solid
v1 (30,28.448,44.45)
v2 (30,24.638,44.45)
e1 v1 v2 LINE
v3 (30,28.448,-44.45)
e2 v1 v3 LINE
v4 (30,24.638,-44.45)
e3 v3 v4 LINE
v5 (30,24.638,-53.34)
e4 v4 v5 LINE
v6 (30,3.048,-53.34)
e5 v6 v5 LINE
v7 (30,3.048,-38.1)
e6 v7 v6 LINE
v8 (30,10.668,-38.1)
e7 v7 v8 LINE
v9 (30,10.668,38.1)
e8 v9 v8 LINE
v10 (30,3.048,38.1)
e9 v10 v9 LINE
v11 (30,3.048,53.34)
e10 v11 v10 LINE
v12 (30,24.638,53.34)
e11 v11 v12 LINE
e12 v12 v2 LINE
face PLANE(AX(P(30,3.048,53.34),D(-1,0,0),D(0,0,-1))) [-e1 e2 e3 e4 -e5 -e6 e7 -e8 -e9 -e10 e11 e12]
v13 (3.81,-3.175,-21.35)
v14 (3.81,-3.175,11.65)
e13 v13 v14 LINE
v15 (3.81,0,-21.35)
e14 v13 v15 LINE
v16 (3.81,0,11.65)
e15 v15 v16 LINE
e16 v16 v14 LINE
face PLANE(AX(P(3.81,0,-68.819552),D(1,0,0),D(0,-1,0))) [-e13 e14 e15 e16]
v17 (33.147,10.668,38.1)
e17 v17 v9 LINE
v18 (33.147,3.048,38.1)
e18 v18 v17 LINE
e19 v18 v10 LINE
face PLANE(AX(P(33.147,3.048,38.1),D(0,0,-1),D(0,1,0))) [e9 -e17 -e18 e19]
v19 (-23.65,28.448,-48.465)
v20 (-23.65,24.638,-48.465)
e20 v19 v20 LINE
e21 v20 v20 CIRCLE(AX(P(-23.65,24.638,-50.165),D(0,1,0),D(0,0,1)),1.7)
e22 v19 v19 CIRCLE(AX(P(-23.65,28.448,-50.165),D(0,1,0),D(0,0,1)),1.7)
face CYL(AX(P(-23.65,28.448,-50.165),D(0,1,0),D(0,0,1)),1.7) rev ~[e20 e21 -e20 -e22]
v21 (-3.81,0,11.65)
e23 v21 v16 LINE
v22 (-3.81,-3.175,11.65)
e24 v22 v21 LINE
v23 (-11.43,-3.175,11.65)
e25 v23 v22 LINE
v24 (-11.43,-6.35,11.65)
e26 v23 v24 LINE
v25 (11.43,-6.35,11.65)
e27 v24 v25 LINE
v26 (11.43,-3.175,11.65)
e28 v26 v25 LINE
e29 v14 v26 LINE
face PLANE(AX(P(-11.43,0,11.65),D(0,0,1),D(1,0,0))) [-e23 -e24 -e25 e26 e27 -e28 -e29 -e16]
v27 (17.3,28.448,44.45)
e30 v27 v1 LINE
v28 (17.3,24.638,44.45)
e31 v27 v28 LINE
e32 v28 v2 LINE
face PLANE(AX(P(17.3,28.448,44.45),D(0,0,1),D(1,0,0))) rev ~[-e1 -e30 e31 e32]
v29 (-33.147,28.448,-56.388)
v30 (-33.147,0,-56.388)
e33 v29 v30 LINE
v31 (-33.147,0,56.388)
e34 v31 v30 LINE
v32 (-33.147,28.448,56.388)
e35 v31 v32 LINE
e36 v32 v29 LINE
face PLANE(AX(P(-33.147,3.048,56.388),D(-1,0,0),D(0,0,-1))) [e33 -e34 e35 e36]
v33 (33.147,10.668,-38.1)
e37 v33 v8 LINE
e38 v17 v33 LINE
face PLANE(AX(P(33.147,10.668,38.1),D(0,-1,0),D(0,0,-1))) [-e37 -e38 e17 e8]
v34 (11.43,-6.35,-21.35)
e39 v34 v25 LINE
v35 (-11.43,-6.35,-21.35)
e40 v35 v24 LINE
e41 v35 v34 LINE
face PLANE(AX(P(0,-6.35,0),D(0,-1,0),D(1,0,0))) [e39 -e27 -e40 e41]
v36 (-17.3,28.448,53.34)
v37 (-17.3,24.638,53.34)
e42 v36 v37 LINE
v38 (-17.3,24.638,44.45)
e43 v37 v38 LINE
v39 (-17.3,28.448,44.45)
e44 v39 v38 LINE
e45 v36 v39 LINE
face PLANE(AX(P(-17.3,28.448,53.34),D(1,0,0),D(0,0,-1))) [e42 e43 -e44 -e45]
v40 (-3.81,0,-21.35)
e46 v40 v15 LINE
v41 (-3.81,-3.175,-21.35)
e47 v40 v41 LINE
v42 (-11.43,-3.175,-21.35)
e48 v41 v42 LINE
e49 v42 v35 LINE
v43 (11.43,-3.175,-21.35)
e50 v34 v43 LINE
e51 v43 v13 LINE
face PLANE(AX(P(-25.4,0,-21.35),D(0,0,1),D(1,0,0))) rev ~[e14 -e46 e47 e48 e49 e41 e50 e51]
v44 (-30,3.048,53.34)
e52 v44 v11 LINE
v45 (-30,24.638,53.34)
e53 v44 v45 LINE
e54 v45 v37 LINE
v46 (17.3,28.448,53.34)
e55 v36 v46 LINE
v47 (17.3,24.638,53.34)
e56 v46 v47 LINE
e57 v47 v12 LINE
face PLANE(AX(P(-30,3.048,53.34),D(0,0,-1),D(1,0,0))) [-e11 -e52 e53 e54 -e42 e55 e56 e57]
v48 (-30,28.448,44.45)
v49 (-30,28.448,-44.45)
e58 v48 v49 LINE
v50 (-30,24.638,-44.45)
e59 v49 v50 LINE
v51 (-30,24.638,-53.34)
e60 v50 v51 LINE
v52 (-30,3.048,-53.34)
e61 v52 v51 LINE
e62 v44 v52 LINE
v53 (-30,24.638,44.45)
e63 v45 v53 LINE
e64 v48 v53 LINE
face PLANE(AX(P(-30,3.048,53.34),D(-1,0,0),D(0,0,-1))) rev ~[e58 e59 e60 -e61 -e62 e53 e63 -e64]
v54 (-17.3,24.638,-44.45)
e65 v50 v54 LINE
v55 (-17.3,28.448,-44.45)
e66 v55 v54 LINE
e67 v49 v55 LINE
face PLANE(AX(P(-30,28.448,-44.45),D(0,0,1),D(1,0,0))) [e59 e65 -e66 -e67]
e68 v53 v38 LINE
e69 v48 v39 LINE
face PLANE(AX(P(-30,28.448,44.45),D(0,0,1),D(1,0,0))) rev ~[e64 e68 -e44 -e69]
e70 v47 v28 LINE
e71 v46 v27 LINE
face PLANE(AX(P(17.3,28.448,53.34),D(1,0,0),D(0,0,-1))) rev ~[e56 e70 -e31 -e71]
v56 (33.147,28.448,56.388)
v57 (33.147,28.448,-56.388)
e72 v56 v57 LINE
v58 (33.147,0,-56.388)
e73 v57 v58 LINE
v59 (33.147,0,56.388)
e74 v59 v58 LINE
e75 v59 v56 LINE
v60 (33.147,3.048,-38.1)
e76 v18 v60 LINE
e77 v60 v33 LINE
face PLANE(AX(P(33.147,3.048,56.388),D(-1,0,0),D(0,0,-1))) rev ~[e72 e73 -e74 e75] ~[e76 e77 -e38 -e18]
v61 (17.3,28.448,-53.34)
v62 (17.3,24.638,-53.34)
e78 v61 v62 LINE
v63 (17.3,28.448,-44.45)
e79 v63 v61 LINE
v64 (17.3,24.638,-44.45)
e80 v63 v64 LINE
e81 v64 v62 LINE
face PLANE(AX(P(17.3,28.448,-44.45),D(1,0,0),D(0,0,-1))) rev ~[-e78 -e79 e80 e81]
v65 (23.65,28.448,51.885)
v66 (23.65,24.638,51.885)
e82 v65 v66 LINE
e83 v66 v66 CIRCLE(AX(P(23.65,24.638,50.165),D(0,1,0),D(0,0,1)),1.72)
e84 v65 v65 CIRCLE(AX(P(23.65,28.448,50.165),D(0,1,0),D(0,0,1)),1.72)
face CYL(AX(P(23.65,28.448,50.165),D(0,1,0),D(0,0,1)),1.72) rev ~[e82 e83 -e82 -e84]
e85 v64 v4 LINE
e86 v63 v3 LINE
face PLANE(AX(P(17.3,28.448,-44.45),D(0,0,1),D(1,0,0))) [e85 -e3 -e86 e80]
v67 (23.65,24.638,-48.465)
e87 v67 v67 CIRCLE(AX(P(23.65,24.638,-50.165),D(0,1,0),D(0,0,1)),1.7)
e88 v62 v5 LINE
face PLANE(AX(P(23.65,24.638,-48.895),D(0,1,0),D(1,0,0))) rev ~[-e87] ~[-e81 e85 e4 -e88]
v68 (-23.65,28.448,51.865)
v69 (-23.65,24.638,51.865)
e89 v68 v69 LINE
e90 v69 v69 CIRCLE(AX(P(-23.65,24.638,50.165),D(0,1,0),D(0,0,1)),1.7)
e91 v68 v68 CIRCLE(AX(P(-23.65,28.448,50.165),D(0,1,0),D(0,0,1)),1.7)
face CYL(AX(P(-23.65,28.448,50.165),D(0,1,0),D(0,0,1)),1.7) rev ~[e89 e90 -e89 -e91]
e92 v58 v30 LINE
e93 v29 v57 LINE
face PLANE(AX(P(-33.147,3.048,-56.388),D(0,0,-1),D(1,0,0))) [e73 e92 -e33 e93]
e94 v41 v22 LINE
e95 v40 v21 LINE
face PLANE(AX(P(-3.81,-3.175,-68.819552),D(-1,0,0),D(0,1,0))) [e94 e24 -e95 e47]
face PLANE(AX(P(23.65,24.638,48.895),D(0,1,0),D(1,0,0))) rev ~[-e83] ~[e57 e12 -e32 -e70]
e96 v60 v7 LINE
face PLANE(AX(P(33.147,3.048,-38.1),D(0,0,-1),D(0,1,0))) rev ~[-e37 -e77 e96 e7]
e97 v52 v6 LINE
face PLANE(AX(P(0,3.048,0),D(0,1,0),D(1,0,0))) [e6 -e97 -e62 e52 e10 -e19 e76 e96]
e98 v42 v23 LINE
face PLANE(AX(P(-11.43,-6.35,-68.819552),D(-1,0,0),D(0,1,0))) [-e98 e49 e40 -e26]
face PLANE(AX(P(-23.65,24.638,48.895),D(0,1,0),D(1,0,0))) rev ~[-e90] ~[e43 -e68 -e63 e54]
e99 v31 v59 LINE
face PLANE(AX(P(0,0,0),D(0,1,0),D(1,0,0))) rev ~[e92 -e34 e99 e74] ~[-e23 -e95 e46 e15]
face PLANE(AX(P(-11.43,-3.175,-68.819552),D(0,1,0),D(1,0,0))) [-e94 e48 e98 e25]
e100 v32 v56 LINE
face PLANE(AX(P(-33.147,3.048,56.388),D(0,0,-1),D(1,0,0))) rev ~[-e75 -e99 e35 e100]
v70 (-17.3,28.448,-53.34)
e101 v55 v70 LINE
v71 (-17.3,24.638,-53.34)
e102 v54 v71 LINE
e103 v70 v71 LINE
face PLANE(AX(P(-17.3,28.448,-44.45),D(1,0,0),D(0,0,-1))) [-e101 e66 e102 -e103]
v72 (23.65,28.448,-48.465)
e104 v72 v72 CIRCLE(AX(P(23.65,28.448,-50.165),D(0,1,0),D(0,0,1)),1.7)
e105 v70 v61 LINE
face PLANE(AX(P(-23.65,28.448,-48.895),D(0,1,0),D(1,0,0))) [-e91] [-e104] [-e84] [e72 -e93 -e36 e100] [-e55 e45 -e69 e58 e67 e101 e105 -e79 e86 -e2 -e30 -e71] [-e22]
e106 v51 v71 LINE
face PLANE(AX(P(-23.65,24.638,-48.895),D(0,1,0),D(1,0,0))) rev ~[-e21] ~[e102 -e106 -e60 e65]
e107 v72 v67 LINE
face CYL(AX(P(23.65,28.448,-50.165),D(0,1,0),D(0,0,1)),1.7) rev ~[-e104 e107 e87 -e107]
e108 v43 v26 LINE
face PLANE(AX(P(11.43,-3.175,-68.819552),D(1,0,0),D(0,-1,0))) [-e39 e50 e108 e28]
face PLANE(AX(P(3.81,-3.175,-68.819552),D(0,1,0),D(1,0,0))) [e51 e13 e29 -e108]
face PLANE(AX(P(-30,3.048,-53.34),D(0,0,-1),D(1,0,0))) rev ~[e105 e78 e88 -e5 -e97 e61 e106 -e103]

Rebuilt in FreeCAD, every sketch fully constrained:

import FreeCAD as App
import Part
import Sketcher

V = App.Vector
Q = App.Units.Quantity


def add_polygon(sketch, points):
    """Adds a closed chain of lines whose ends are joined by coincident constraints."""
    first, n = sketch.GeometryCount, len(points)
    for a, b in zip(points, points[1:] + points[:1]):
        sketch.addGeometry(Part.LineSegment(App.Vector(*a, 0), App.Vector(*b, 0)), False)
    for i in range(n):
        sketch.addConstraint(Sketcher.Constraint("Coincident", first + i, 2, first + (i + 1) % n, 1))

doc = App.newDocument("Part")
body = doc.addObject("PartDesign::Body", "Body")

# Sketch on XZ plane
sketch1 = doc.addObject("Sketcher::SketchObject", "Sketch")
body.addObject(sketch1)
sketch1.AttachmentSupport = (doc.XZ_Plane, [""])
sketch1.MapMode = "FlatFace"
add_polygon(sketch1, [(-33, -56), (-33, 56), (33, 56), (33, -56)])  # lines 0-3
sketch1.addConstraint([
    Sketcher.Constraint("Vertical", 0),
    Sketcher.Constraint("Horizontal", 1),
    Sketcher.Constraint("Vertical", 2),
    Sketcher.Constraint("Horizontal", 3),
    Sketcher.Constraint("Symmetric", 0, 2, 2, 2, -1, 1),
    Sketcher.Constraint("DistanceX", 1, 1, 1, 2, Q("2.61 in")),
    Sketcher.Constraint("DistanceY", 0, 1, 0, 2, Q("4.44 in")),
])
pad1 = doc.addObject("PartDesign::Pad", "Pad")
body.addObject(pad1)
pad1.Profile = sketch1
pad1.Length = Q("0.12 in")
pad1.Reversed = True

# Sketch on XZ plane
sketch2 = doc.addObject("Sketcher::SketchObject", "Sketch001")
body.addObject(sketch2)
sketch2.AttachmentSupport = (doc.XZ_Plane, [""])
sketch2.MapMode = "FlatFace"
sketch2.AttachmentOffset = App.Placement(V(0, 0, -0.12 * 25.4), App.Rotation())
add_polygon(sketch2, [(-33, -56), (-33, 56), (33, 56), (33, -56)])  # lines 0-3
add_polygon(sketch2, [(30, 53), (-30, 53), (-30, -53), (30, -53)])  # lines 4-7
sketch2.addConstraint([
    Sketcher.Constraint("Vertical", 0),
    Sketcher.Constraint("Horizontal", 1),
    Sketcher.Constraint("Vertical", 2),
    Sketcher.Constraint("Horizontal", 3),
    Sketcher.Constraint("Horizontal", 4),
    Sketcher.Constraint("Vertical", 5),
    Sketcher.Constraint("Horizontal", 6),
    Sketcher.Constraint("Vertical", 7),
    Sketcher.Constraint("Symmetric", 0, 2, 2, 2, -1, 1),
    Sketcher.Constraint("Symmetric", 4, 2, 6, 2, -1, 1),
    Sketcher.Constraint("DistanceY", 5, 2, 5, 1, Q("4.2 in")),
    Sketcher.Constraint("DistanceX", 1, 1, 1, 2, Q("2.61 in")),
    Sketcher.Constraint("DistanceY", 0, 1, 0, 2, Q("4.44 in")),
    Sketcher.Constraint("DistanceX", 4, 2, 4, 1, 60.0),
])
pad2 = doc.addObject("PartDesign::Pad", "Pad001")
body.addObject(pad2)
pad2.Profile = sketch2
pad2.Length = Q("1 in")
pad2.Reversed = True

# Sketch on XZ plane
sketch3 = doc.addObject("Sketcher::SketchObject", "Sketch002")
body.addObject(sketch3)
sketch3.AttachmentSupport = (doc.XZ_Plane, [""])
sketch3.MapMode = "FlatFace"
sketch3.AttachmentOffset = App.Placement(V(0, 0, -1.12 * 25.4), App.Rotation())
add_polygon(sketch3, [(-30, -53), (-30, -44), (-17, -44), (-17, -53)])  # lines 0-3
add_polygon(sketch3, [(-30, 44), (-30, 53), (-17, 53), (-17, 44)])  # lines 4-7
add_polygon(sketch3, [(17, -53), (17, -44), (30, -44), (30, -53)])  # lines 8-11
add_polygon(sketch3, [(17, 44), (17, 53), (30, 53), (30, 44)])  # lines 12-15
sketch3.addConstraint([
    Sketcher.Constraint("Vertical", 0),
    Sketcher.Constraint("Horizontal", 1),
    Sketcher.Constraint("Vertical", 2),
    Sketcher.Constraint("Horizontal", 3),
    Sketcher.Constraint("Vertical", 4),
    Sketcher.Constraint("Horizontal", 5),
    Sketcher.Constraint("Vertical", 6),
    Sketcher.Constraint("Horizontal", 7),
    Sketcher.Constraint("Vertical", 8),
    Sketcher.Constraint("Horizontal", 9),
    Sketcher.Constraint("Vertical", 10),
    Sketcher.Constraint("Horizontal", 11),
    Sketcher.Constraint("Vertical", 12),
    Sketcher.Constraint("Horizontal", 13),
    Sketcher.Constraint("Vertical", 14),
    Sketcher.Constraint("Horizontal", 15),
    Sketcher.Constraint("Symmetric", 6, 2, 8, 2, -1, 1),
    Sketcher.Constraint("Symmetric", 4, 2, 10, 2, -1, 1),
    Sketcher.Constraint("Symmetric", 2, 2, 12, 2, -1, 1),
    Sketcher.Constraint("Symmetric", 0, 2, 14, 2, -1, 1),
    Sketcher.Constraint("Symmetric", 1, 2, 8, 2, -2),
    Sketcher.Constraint("Symmetric", 3, 2, 10, 2, -2),
    Sketcher.Constraint("DistanceX", 1, 1, 1, 2, Q("0.5 in")),
    Sketcher.Constraint("DistanceY", 0, 1, 0, 2, Q("0.35 in")),
    Sketcher.Constraint("DistanceY", 2, 2, -1, 1, Q("2.1 in")),
    Sketcher.Constraint("DistanceX", 0, 2, -1, 1, 30.0),
])
pad3 = doc.addObject("PartDesign::Pad", "Pad002")
body.addObject(pad3)
pad3.Profile = sketch3
pad3.Length = Q("0.15 in")

# Sketch on YZ plane
sketch4 = doc.addObject("Sketcher::SketchObject", "Sketch003")
body.addObject(sketch4)
sketch4.AttachmentSupport = (doc.YZ_Plane, [""])
sketch4.MapMode = "FlatFace"
sketch4.AttachmentOffset = App.Placement(V(0, 0, 1.305 * 25.4), App.Rotation())
add_polygon(sketch4, [(11, 38), (3, 38), (3, -38), (11, -38)])  # lines 0-3
sketch4.addConstraint([
    Sketcher.Constraint("Horizontal", 0),
    Sketcher.Constraint("Vertical", 1),
    Sketcher.Constraint("Horizontal", 2),
    Sketcher.Constraint("Vertical", 3),
    Sketcher.Constraint("DistanceY", 1, 2, 1, 1, Q("3 in")),
    Sketcher.Constraint("DistanceX", 0, 2, 0, 1, Q("0.3 in")),
    Sketcher.Constraint("DistanceY", -1, 1, 0, 2, Q("1.5 in")),
    Sketcher.Constraint("DistanceX", -1, 1, 0, 2, Q("0.12 in")),
])
pocket1 = doc.addObject("PartDesign::Pocket", "Pocket")
body.addObject(pocket1)
pocket1.Profile = sketch4
pocket1.Type = "UpToFirst"

# Sketch on XZ plane
sketch5 = doc.addObject("Sketcher::SketchObject", "Sketch004")
body.addObject(sketch5)
sketch5.AttachmentSupport = (doc.XZ_Plane, [""])
sketch5.MapMode = "FlatFace"
add_polygon(sketch5, [(-25, 21), (-25, -21), (25, -21), (25, 21)])  # lines 0-3
sketch5.addConstraint([
    Sketcher.Constraint("Vertical", 0),
    Sketcher.Constraint("Horizontal", 1),
    Sketcher.Constraint("Vertical", 2),
    Sketcher.Constraint("Horizontal", 3),
    Sketcher.Constraint("Symmetric", 0, 2, 2, 2, -1, 1),
    Sketcher.Constraint("DistanceX", 1, 1, 1, 2, Q("2 in")),
    Sketcher.Constraint("DistanceY", 0, 2, 0, 1, 42.7),
])
pad4 = doc.addObject("PartDesign::Pad", "Pad003")
body.addObject(pad4)
pad4.Profile = sketch5
pad4.Length = Q("0.25 in")

# Sketch on XY plane
sketch6 = doc.addObject("Sketcher::SketchObject", "Sketch005")
body.addObject(sketch6)
sketch6.AttachmentSupport = (doc.XY_Plane, [""])
sketch6.MapMode = "FlatFace"
sketch6.AttachmentOffset = App.Placement(V(0, 0, 21.35), App.Rotation())
add_polygon(sketch6, [(-3.8, -3.2), (-3.8, 0), (-25.4, 0), (-25.4, -6.3), (-11.4, -6.3), (-11.4, -3.2)])  # lines 0-5
add_polygon(sketch6, [(25.4, 0), (3.8, 0), (3.8, -3.2), (11.4, -3.2), (11.4, -6.3), (25.4, -6.3)])  # lines 6-11
sketch6.addConstraint([
    Sketcher.Constraint("Vertical", 0),
    Sketcher.Constraint("Horizontal", 1),
    Sketcher.Constraint("Vertical", 2),
    Sketcher.Constraint("Horizontal", 3),
    Sketcher.Constraint("Vertical", 4),
    Sketcher.Constraint("Horizontal", 5),
    Sketcher.Constraint("Horizontal", 6),
    Sketcher.Constraint("Vertical", 7),
    Sketcher.Constraint("Horizontal", 8),
    Sketcher.Constraint("Vertical", 9),
    Sketcher.Constraint("Horizontal", 10),
    Sketcher.Constraint("Vertical", 11),
    Sketcher.Constraint("Symmetric", 0, 2, 6, 2, -1, 1),
    Sketcher.Constraint("Symmetric", 4, 2, 8, 2, -2),
    Sketcher.Constraint("Symmetric", 2, 2, 10, 2, -2),
    Sketcher.Constraint("PointOnObject", 0, 2, -1),
    Sketcher.Constraint("Equal", 0, 4),
    Sketcher.Constraint("DistanceX", 5, 1, 5, 2, Q("0.3 in")),
    Sketcher.Constraint("DistanceX", 1, 2, -1, 1, Q("1 in")),
    Sketcher.Constraint("DistanceX", 1, 2, 1, 1, Q("0.85 in")),
    Sketcher.Constraint("DistanceY", 2, 2, 2, 1, Q("0.25 in")),
])
pocket2 = doc.addObject("PartDesign::Pocket", "Pocket001")
body.addObject(pocket2)
pocket2.Profile = sketch6
pocket2.Type = "ThroughAll"
pocket2.Midplane = True

# Sketch on XZ plane
sketch7 = doc.addObject("Sketcher::SketchObject", "Sketch006")
body.addObject(sketch7)
sketch7.AttachmentSupport = (doc.XZ_Plane, [""])
sketch7.MapMode = "FlatFace"
add_polygon(sketch7, [(-11, 21), (-11, 12), (11, 12), (11, 21)])  # lines 0-3
sketch7.addConstraint([
    Sketcher.Constraint("Vertical", 0),
    Sketcher.Constraint("Horizontal", 1),
    Sketcher.Constraint("Vertical", 2),
    Sketcher.Constraint("Horizontal", 3),
    Sketcher.Constraint("DistanceX", 1, 1, 1, 2, Q("0.9 in")),
    Sketcher.Constraint("DistanceX", 0, 2, -1, 1, Q("0.45 in")),
    Sketcher.Constraint("DistanceY", 0, 2, 0, 1, 9.7),
    Sketcher.Constraint("DistanceY", -1, 1, 0, 2, 11.65),
])
pocket3 = doc.addObject("PartDesign::Pocket", "Pocket002")
body.addObject(pocket3)
pocket3.Profile = sketch7
pocket3.Length = Q("0.25 in")
pocket3.Reversed = True

# Sketch on XZ plane
sketch8 = doc.addObject("Sketcher::SketchObject", "Sketch007")
body.addObject(sketch8)
sketch8.AttachmentSupport = (doc.XZ_Plane, [""])
sketch8.MapMode = "FlatFace"
sketch8.AttachmentOffset = App.Placement(V(0, 0, -1.12 * 25.4), App.Rotation())
sketch8.addGeometry(Part.Circle(V(-23.6, -50.2, 0), V(0, 0, 1), 1.7), False)
sketch8.addConstraint([
    Sketcher.Constraint("Diameter", 0, 3.4),
    Sketcher.Constraint("DistanceY", 0, 3, -1, 1, Q("1.975 in")),
    Sketcher.Constraint("DistanceX", 0, 3, -1, 1, 23.65),
])
pocket4 = doc.addObject("PartDesign::Pocket", "Pocket003")
body.addObject(pocket4)
pocket4.Profile = sketch8
pocket4.Type = "UpToFirst"
pocket4.Reversed = True

# Sketch on XZ plane
sketch9 = doc.addObject("Sketcher::SketchObject", "Sketch008")
body.addObject(sketch9)
sketch9.AttachmentSupport = (doc.XZ_Plane, [""])
sketch9.MapMode = "FlatFace"
sketch9.AttachmentOffset = App.Placement(V(0, 0, -1.12 * 25.4), App.Rotation())
sketch9.addGeometry(Part.Circle(V(23.6, -50.2, 0), V(0, 0, 1), 1.7), False)
sketch9.addConstraint([
    Sketcher.Constraint("Diameter", 0, 3.4),
    Sketcher.Constraint("DistanceY", 0, 3, -1, 1, Q("1.975 in")),
    Sketcher.Constraint("DistanceX", -1, 1, 0, 3, 23.65),
])
pocket5 = doc.addObject("PartDesign::Pocket", "Pocket004")
body.addObject(pocket5)
pocket5.Profile = sketch9
pocket5.Type = "UpToFirst"
pocket5.Reversed = True

# Sketch on XZ plane
sketch10 = doc.addObject("Sketcher::SketchObject", "Sketch009")
body.addObject(sketch10)
sketch10.AttachmentSupport = (doc.XZ_Plane, [""])
sketch10.MapMode = "FlatFace"
sketch10.AttachmentOffset = App.Placement(V(0, 0, -1.12 * 25.4), App.Rotation())
sketch10.addGeometry(Part.Circle(V(23.6, 50.2, 0), V(0, 0, 1), 1.7), False)
sketch10.addConstraint([
    Sketcher.Constraint("Diameter", 0, 3.44),
    Sketcher.Constraint("DistanceY", -1, 1, 0, 3, Q("1.975 in")),
    Sketcher.Constraint("DistanceX", -1, 1, 0, 3, 23.65),
])
pocket6 = doc.addObject("PartDesign::Pocket", "Pocket005")
body.addObject(pocket6)
pocket6.Profile = sketch10
pocket6.Type = "UpToFirst"
pocket6.Reversed = True

# Sketch on XZ plane
sketch11 = doc.addObject("Sketcher::SketchObject", "Sketch010")
body.addObject(sketch11)
sketch11.AttachmentSupport = (doc.XZ_Plane, [""])
sketch11.MapMode = "FlatFace"
sketch11.AttachmentOffset = App.Placement(V(0, 0, -1.12 * 25.4), App.Rotation())
sketch11.addGeometry(Part.Circle(V(-23.6, 50.2, 0), V(0, 0, 1), 1.7), False)
sketch11.addConstraint([
    Sketcher.Constraint("Diameter", 0, 3.4),
    Sketcher.Constraint("DistanceY", -1, 1, 0, 3, Q("1.975 in")),
    Sketcher.Constraint("DistanceX", 0, 3, -1, 1, 23.65),
])
pocket7 = doc.addObject("PartDesign::Pocket", "Pocket006")
body.addObject(pocket7)
pocket7.Profile = sketch11
pocket7.Type = "UpToFirst"
pocket7.Reversed = True

doc.recompute()
